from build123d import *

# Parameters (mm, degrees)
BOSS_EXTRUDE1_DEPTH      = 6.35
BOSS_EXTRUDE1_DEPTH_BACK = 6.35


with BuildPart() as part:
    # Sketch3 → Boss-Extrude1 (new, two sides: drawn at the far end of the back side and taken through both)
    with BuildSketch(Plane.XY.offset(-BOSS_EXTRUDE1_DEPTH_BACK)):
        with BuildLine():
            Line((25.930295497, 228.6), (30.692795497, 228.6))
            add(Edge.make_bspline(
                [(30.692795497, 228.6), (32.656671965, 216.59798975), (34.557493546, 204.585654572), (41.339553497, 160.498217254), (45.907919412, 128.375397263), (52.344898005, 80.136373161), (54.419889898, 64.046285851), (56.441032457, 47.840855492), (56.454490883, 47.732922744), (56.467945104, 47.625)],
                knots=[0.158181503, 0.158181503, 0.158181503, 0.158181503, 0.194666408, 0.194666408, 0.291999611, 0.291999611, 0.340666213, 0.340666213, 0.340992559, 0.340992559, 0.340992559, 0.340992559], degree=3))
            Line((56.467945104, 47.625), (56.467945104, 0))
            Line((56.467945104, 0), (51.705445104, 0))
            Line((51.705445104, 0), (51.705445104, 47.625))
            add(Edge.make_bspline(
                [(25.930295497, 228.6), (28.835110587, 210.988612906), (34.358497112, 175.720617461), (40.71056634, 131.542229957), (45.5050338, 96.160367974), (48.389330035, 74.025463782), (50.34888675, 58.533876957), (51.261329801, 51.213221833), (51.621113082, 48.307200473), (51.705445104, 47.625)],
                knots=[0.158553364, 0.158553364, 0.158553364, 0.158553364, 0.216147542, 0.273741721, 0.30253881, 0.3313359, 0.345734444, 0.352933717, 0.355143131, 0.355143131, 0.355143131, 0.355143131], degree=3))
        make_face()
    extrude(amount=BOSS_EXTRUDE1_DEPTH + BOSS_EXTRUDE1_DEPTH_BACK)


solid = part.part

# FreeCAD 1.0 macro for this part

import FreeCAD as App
import Part
import Sketcher

V = App.Vector

doc = App.newDocument("Part")
params = doc.addObject("Spreadsheet::Sheet", "Params")
for row, (alias, value) in enumerate([
    ("pad1_length", "0.25 in"),
    ("pad1_length2", "0.25 in"),
], start=1):
    params.set(f"A{row}", alias)
    params.set(f"B{row}", "=" + value)
    params.setAlias(f"B{row}", alias)

body = doc.addObject("PartDesign::Body", "Body")

sketch1 = doc.addObject("Sketcher::SketchObject", "Sketch")
body.addObject(sketch1)
sketch1.AttachmentSupport = (doc.XY_Plane, [""])
sketch1.MapMode = "FlatFace"
sketch1.addGeometry(Part.LineSegment(V(30.692795, 228.6, 0), V(25.930295, 228.6, 0)), False)
sketch1.addGeometry(Part.BSplineCurve([V(25.930295, 228.6, 0), V(28.835111, 210.988613, 0), V(34.358497, 175.720617, 0), V(40.710566, 131.54223, 0), V(45.505034, 96.160368, 0), V(48.38933, 74.025464, 0), V(50.348887, 58.533877, 0), V(51.26133, 51.213222, 0), V(51.621113, 48.3072, 0), V(51.705445, 47.625, 0)], [4, 1, 1, 1, 1, 1, 1, 4], [0.158553364, 0.216147542, 0.273741721, 0.30253881, 0.3313359, 0.345734444, 0.352933717, 0.355143131], False, 3, [1, 1, 1, 1, 1, 1, 1, 1, 1, 1], False), False)
sketch1.addGeometry(Part.LineSegment(V(51.705445, 47.625, 0), V(51.705445, 0, 0)), False)
sketch1.addGeometry(Part.LineSegment(V(51.705445, 0, 0), V(56.467945, 0, 0)), False)
sketch1.addGeometry(Part.LineSegment(V(56.467945, 0, 0), V(56.467945, 47.625, 0)), False)
sketch1.addGeometry(Part.BSplineCurve([V(30.692795, 228.6, 0), V(32.656672, 216.59799, 0), V(34.557494, 204.585655, 0), V(41.339553, 160.498217, 0), V(45.907919, 128.375397, 0), V(52.344898, 80.136373, 0), V(54.41989, 64.046286, 0), V(56.441032, 47.840855, 0), V(56.454491, 47.732923, 0), V(56.467945, 47.625, 0)], [4, 2, 2, 2, 4], [0.158181503, 0.194666408, 0.291999611, 0.340666213, 0.340992559], False, 3, [1, 1, 1, 1, 1, 1, 1, 1, 1, 1], False), False)
sketch1.addConstraint(Sketcher.Constraint("Block", 1))
sketch1.addConstraint(Sketcher.Constraint("Block", 5))
sketch1.addConstraint(Sketcher.Constraint("Coincident", 0, 2, 1, 1))
sketch1.addConstraint(Sketcher.Constraint("Coincident", 1, 2, 2, 1))
sketch1.addConstraint(Sketcher.Constraint("Coincident", 2, 2, 3, 1))
sketch1.addConstraint(Sketcher.Constraint("Coincident", 3, 2, 4, 1))
sketch1.addConstraint(Sketcher.Constraint("Coincident", 4, 2, 5, 2))
sketch1.addConstraint(Sketcher.Constraint("Coincident", 5, 1, 0, 1))
sketch1.addConstraint(Sketcher.Constraint("Vertical", 2))
sketch1.addConstraint(Sketcher.Constraint("Horizontal", 3))
sketch1.addConstraint(Sketcher.Constraint("Vertical", 4))
sketch1.addConstraint(Sketcher.Constraint("PointOnObject", 2, 2, -1))
pad1 = doc.addObject("PartDesign::Pad", "Pad")
body.addObject(pad1)
pad1.Profile = sketch1
pad1.Type = "TwoLengths"
pad1.setExpression("Length", "Params.pad1_length")
pad1.setExpression("Length2", "Params.pad1_length2")

doc.recompute()
